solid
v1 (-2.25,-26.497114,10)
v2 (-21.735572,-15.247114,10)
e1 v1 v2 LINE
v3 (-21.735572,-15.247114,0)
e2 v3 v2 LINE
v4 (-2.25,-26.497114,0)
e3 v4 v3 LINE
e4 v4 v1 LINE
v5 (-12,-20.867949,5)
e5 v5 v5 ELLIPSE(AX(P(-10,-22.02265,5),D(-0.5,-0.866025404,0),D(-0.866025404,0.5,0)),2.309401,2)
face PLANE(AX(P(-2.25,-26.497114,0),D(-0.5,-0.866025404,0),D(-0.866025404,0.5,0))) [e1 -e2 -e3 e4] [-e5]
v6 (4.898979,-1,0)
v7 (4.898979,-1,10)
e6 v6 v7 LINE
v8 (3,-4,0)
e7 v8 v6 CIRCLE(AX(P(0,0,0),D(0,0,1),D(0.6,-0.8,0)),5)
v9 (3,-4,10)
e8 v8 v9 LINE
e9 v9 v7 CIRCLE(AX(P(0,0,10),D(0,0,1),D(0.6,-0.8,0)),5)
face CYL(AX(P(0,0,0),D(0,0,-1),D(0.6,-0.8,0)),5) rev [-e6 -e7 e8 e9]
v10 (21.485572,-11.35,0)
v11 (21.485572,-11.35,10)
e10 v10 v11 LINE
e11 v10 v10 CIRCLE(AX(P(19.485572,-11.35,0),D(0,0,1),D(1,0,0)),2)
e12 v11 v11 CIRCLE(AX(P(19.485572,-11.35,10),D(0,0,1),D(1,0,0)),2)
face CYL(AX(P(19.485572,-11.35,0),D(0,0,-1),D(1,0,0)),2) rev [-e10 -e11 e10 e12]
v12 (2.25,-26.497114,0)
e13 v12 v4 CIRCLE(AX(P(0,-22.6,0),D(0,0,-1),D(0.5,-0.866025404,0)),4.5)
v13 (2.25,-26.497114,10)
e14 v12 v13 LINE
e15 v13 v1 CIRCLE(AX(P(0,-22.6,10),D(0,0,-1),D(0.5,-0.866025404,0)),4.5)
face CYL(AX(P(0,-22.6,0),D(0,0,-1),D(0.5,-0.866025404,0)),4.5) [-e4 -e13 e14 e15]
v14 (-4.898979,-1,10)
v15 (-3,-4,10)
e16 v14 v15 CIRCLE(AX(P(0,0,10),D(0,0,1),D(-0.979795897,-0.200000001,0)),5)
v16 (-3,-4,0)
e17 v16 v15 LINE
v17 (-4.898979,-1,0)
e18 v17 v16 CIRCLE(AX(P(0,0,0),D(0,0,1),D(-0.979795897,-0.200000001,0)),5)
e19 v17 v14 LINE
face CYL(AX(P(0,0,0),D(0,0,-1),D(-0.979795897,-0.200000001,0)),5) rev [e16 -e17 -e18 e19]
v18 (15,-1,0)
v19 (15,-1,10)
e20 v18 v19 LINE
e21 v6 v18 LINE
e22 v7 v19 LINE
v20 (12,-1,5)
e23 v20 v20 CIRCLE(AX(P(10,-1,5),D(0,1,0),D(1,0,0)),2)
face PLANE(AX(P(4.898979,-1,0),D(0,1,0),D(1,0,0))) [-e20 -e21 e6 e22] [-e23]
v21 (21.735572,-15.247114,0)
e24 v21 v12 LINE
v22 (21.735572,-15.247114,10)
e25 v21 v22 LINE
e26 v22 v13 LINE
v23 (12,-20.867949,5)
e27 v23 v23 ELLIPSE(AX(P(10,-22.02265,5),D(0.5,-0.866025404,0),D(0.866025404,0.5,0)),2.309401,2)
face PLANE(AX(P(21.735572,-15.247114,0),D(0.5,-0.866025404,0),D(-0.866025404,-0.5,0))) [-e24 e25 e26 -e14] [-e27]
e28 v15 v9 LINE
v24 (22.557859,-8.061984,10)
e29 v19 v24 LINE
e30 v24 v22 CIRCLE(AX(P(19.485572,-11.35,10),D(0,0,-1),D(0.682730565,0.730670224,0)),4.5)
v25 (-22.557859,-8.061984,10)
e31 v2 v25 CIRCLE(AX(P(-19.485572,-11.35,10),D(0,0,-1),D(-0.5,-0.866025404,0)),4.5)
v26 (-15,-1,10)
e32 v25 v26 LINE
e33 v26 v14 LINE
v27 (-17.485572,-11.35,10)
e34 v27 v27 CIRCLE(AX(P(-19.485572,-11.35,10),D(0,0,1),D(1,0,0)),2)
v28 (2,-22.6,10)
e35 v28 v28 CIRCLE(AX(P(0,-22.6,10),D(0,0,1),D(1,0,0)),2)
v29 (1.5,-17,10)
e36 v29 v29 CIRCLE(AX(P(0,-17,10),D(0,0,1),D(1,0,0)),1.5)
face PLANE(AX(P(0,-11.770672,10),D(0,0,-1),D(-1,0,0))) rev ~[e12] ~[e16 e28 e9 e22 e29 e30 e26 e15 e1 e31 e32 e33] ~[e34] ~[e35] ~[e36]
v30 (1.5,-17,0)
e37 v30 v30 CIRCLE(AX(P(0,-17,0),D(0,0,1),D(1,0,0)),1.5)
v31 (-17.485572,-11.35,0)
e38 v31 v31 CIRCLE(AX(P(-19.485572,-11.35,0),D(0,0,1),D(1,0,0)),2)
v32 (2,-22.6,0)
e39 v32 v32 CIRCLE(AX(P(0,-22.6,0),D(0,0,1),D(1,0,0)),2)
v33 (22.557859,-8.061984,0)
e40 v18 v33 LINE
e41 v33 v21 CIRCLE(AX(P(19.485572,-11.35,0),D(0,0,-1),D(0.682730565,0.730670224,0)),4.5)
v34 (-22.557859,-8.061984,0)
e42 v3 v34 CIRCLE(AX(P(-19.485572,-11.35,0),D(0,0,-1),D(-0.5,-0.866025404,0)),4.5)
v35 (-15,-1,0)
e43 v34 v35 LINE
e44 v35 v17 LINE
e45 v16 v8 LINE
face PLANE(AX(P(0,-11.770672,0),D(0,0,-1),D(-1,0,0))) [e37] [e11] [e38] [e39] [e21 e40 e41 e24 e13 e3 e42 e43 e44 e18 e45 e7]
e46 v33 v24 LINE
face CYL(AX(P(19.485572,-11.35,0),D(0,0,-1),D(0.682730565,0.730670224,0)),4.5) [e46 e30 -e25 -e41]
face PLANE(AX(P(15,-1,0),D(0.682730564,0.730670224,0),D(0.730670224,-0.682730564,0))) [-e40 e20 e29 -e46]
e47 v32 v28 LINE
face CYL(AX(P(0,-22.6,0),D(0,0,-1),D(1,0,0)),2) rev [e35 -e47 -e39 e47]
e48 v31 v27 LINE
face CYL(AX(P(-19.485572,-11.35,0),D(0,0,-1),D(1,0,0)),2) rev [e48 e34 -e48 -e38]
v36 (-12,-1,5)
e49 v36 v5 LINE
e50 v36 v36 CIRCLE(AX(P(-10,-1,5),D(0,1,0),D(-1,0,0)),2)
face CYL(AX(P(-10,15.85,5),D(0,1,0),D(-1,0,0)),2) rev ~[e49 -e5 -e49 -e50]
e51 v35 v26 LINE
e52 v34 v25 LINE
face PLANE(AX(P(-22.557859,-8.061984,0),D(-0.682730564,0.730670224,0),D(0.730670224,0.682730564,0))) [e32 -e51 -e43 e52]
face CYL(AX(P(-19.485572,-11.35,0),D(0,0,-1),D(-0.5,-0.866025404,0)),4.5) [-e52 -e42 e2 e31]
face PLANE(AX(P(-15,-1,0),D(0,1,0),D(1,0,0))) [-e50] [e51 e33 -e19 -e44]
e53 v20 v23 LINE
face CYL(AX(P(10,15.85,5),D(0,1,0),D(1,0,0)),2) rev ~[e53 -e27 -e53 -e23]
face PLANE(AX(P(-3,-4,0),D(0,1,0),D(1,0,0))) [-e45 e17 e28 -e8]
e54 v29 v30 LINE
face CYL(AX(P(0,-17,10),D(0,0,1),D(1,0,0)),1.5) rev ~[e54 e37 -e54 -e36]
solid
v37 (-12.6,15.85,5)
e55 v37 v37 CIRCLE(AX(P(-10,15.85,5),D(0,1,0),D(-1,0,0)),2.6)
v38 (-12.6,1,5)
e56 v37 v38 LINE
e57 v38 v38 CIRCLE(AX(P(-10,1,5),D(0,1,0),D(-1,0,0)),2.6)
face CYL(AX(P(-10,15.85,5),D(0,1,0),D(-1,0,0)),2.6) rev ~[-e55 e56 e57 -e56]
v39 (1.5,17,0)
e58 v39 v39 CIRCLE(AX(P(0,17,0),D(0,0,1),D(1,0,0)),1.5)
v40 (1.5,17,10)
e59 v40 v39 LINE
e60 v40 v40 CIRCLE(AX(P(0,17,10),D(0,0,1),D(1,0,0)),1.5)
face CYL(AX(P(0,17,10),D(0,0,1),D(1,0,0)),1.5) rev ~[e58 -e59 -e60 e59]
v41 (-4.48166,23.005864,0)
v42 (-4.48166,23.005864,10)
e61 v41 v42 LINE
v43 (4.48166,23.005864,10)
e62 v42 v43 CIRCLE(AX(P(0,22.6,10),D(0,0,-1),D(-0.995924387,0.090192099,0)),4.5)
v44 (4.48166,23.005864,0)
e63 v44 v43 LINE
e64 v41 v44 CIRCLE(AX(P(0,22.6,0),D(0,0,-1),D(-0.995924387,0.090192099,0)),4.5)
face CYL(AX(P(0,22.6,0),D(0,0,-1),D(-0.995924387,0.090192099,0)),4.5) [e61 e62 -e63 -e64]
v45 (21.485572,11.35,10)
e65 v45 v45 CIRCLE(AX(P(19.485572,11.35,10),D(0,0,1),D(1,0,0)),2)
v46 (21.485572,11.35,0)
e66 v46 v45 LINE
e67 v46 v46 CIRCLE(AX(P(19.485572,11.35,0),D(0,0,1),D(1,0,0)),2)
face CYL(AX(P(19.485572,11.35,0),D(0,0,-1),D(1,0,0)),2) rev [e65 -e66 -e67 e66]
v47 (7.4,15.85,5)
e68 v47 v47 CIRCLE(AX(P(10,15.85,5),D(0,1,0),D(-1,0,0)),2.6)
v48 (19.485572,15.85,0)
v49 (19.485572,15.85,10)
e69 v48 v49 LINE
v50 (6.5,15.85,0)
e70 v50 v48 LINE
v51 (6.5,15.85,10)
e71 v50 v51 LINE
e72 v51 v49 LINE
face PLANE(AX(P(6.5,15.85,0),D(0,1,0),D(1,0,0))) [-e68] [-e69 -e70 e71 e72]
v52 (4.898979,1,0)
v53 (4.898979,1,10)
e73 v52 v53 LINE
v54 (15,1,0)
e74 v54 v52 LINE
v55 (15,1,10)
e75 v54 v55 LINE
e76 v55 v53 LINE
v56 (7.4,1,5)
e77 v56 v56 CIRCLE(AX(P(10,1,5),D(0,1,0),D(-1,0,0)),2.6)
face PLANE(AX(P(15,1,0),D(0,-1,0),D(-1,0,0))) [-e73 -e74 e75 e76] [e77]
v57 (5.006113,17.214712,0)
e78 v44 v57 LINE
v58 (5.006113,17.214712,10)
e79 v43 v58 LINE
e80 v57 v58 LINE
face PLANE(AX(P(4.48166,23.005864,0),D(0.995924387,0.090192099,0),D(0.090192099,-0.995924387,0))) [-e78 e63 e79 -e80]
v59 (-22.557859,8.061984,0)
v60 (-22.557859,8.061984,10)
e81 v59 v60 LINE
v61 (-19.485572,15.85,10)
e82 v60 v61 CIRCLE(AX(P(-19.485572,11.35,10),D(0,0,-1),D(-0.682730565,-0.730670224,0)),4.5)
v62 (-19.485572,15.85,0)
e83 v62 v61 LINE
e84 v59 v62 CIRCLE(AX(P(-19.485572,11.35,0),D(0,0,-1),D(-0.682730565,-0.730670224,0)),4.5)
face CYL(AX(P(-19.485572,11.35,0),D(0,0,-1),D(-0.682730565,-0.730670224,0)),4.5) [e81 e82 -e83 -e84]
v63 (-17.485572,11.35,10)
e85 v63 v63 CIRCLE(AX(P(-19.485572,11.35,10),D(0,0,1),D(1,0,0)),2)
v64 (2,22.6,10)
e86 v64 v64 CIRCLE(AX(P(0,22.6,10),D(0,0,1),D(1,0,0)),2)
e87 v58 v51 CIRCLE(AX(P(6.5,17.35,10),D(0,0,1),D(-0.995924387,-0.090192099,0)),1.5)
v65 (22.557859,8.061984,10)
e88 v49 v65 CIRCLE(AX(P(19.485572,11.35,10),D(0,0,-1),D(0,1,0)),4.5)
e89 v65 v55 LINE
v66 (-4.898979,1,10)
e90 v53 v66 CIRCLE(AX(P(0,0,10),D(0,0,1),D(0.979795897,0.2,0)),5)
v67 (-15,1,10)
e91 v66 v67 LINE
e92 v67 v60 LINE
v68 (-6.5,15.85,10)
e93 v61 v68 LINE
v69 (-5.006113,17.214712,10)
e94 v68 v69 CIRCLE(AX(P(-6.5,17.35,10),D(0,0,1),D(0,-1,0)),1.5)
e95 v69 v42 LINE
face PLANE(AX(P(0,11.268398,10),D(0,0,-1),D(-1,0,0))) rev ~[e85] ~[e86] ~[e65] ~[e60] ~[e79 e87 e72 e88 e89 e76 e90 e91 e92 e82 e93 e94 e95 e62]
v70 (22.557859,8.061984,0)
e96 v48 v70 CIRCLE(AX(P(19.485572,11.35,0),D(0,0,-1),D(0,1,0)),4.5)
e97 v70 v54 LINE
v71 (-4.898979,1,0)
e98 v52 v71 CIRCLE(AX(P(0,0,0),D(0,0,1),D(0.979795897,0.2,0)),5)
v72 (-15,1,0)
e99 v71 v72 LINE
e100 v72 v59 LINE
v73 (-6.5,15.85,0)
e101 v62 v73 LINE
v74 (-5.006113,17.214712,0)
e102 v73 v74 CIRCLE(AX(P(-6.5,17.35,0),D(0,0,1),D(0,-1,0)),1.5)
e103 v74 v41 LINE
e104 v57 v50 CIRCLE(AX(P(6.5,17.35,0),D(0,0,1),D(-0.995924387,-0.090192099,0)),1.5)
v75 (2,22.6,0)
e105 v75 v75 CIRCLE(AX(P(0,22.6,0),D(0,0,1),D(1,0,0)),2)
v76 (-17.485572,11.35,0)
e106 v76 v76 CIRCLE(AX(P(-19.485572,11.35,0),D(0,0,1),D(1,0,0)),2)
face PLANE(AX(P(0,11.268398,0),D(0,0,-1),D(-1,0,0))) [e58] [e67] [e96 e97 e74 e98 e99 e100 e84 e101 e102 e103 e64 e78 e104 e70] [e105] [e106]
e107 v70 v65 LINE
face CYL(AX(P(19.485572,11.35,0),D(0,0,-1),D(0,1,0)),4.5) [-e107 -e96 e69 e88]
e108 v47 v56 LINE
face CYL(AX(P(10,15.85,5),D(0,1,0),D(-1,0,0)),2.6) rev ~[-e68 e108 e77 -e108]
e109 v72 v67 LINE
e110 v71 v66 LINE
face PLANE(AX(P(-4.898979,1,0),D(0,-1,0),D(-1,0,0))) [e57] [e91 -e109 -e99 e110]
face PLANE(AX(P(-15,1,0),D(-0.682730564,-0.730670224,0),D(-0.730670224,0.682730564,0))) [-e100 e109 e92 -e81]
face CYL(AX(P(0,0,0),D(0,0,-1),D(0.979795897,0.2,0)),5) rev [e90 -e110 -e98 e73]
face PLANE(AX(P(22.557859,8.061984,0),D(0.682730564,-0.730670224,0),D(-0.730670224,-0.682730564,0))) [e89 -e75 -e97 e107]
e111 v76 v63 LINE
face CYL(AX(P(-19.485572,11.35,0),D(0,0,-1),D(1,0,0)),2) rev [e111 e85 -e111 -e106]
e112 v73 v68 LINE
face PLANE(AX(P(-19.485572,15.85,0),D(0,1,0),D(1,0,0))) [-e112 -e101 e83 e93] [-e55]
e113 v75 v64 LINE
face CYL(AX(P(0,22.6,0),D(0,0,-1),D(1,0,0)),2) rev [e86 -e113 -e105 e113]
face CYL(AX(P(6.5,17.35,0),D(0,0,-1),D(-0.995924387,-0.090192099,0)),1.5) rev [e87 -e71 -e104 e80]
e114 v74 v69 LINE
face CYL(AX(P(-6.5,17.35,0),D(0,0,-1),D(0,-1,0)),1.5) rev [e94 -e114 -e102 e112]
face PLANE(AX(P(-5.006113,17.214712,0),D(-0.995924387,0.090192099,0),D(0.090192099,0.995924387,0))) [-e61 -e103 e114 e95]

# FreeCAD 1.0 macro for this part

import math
import FreeCAD as App
import Part
import Sketcher
Q = App.Units.Quantity

doc = App.newDocument("Part")
body = doc.addObject("PartDesign::Body", "Body")

# Sketch on XY plane
sketch1 = body.newObject("Sketcher::SketchObject", "Sketch")
sketch1.AttachmentSupport = (doc.getObject("XY_Plane"), [""])
sketch1.MapMode = "FlatFace"
sketch1.addGeometry(Part.LineSegment(App.Vector(3, -4, 0), App.Vector(-3, -4, 0)), False)
sketch1.addGeometry(Part.ArcOfCircle(Part.Circle(App.Vector(0, 0, 0), App.Vector(0, 0, 1), 5), math.radians(-168), math.radians(-127)), False)
sketch1.addGeometry(Part.LineSegment(App.Vector(-4.9, -1, 0), App.Vector(-15, -1, 0)), False)
sketch1.addGeometry(Part.LineSegment(App.Vector(-15, -1, 0), App.Vector(-22.6, -8.1, 0)), False)
sketch1.addGeometry(Part.ArcOfCircle(Part.Circle(App.Vector(-19.5, -11.3, 0), App.Vector(0, 0, 1), 4.5), math.radians(133), math.radians(240)), False)
sketch1.addGeometry(Part.LineSegment(App.Vector(-21.7, -15.2, 0), App.Vector(-2.2, -26.5, 0)), False)
sketch1.addGeometry(Part.ArcOfCircle(Part.Circle(App.Vector(0, -22.6, 0), App.Vector(0, 0, 1), 4.5), math.radians(-120), math.radians(-60)), False)
sketch1.addGeometry(Part.LineSegment(App.Vector(2.2, -26.5, 0), App.Vector(21.7, -15.2, 0)), False)
sketch1.addGeometry(Part.ArcOfCircle(Part.Circle(App.Vector(19.5, -11.3, 0), App.Vector(0, 0, 1), 4.5), math.radians(-60), math.radians(47)), False)
sketch1.addGeometry(Part.LineSegment(App.Vector(22.6, -8.1, 0), App.Vector(15, -1, 0)), False)
sketch1.addGeometry(Part.LineSegment(App.Vector(15, -1, 0), App.Vector(4.9, -1, 0)), False)
sketch1.addGeometry(Part.ArcOfCircle(Part.Circle(App.Vector(0, 0, 0), App.Vector(0, 0, 1), 5), math.radians(-53), math.radians(-12)), False)
sketch1.addGeometry(Part.Circle(App.Vector(0, -22.6, 0), App.Vector(0, 0, 1), 2), False)
sketch1.addGeometry(Part.Circle(App.Vector(19.5, -11.3, 0), App.Vector(0, 0, 1), 2), False)
sketch1.addGeometry(Part.Circle(App.Vector(-19.5, -11.3, 0), App.Vector(0, 0, 1), 2), False)
sketch1.addConstraint(Sketcher.Constraint("Coincident", 0, 2, 1, 2))
sketch1.addConstraint(Sketcher.Constraint("Coincident", 1, 1, 2, 1))
sketch1.addConstraint(Sketcher.Constraint("Coincident", 2, 2, 3, 1))
sketch1.addConstraint(Sketcher.Constraint("Tangent", 3, 2, 4, 1))
sketch1.addConstraint(Sketcher.Constraint("Tangent", 4, 2, 5, 1))
sketch1.addConstraint(Sketcher.Constraint("Tangent", 5, 2, 6, 1))
sketch1.addConstraint(Sketcher.Constraint("Tangent", 6, 2, 7, 1))
sketch1.addConstraint(Sketcher.Constraint("Tangent", 7, 2, 8, 1))
sketch1.addConstraint(Sketcher.Constraint("Tangent", 8, 2, 9, 1))
sketch1.addConstraint(Sketcher.Constraint("Coincident", 9, 2, 10, 1))
sketch1.addConstraint(Sketcher.Constraint("Coincident", 10, 2, 11, 2))
sketch1.addConstraint(Sketcher.Constraint("Coincident", 11, 1, 0, 1))
sketch1.addConstraint(Sketcher.Constraint("Horizontal", 0))
sketch1.addConstraint(Sketcher.Constraint("Horizontal", 2))
sketch1.addConstraint(Sketcher.Constraint("Horizontal", 10))
sketch1.addConstraint(Sketcher.Constraint("Coincident", 1, 3, -1, 1))
sketch1.addConstraint(Sketcher.Constraint("Coincident", 11, 3, -1, 1))
sketch1.addConstraint(Sketcher.Constraint("Coincident", 12, 3, 6, 3))
sketch1.addConstraint(Sketcher.Constraint("Coincident", 13, 3, 8, 3))
sketch1.addConstraint(Sketcher.Constraint("Coincident", 14, 3, 4, 3))
sketch1.addConstraint(Sketcher.Constraint("Equal", 4, 6))
sketch1.addConstraint(Sketcher.Constraint("Equal", 6, 8))
sketch1.addConstraint(Sketcher.Constraint("Equal", 1, 11))
sketch1.addConstraint(Sketcher.Constraint("Equal", 12, 13))
sketch1.addConstraint(Sketcher.Constraint("Equal", 13, 14))
sketch1.addConstraint(Sketcher.Constraint("Symmetric", 4, 3, 8, 3, -2))
sketch1.addConstraint(Sketcher.Constraint("Symmetric", 2, 2, 9, 2, -2))
sketch1.addConstraint(Sketcher.Constraint("PointOnObject", 6, 3, -2))
sketch1.addConstraint(Sketcher.Constraint("Diameter", 12, Q("4 mm")))
sketch1.addConstraint(Sketcher.Constraint("Radius", 1, Q("5 mm")))
sketch1.addConstraint(Sketcher.Constraint("Radius", 4, Q("4.5 mm")))
sketch1.addConstraint(Sketcher.Constraint("DistanceX", 0, 2, 0, 1, Q("6 mm")))
sketch1.addConstraint(Sketcher.Constraint("Angle", 5, Q("-30 deg")))
sketch1.addConstraint(Sketcher.Constraint("DistanceY", 1, 1, -1, 1, Q("1 mm")))
sketch1.addConstraint(Sketcher.Constraint("DistanceX", 2, 2, -1, 1, Q("15 mm")))
sketch1.addConstraint(Sketcher.Constraint("Distance", 5, Q("22.5 mm")))
sketch1.addConstraint(Sketcher.Constraint("DistanceY", 6, 3, -1, 1, Q("22.6 mm")))
pad1 = body.newObject("PartDesign::Pad", "Pad")
pad1.Profile = sketch1
pad1.Length = 10

# Sketch on XZ plane
sketch2 = body.newObject("Sketcher::SketchObject", "Sketch001")
sketch2.AttachmentSupport = (doc.getObject("XZ_Plane"), [""])
sketch2.MapMode = "FlatFace"
sketch2.AttachmentOffset = App.Placement(App.Vector(0, 0, -15.85), App.Rotation())
sketch2.addGeometry(Part.Circle(App.Vector(-10, 5, 0), App.Vector(0, 0, 1), 2), False)
sketch2.addGeometry(Part.Circle(App.Vector(10, 5, 0), App.Vector(0, 0, 1), 2), False)
sketch2.addConstraint(Sketcher.Constraint("Equal", 0, 1))
sketch2.addConstraint(Sketcher.Constraint("Symmetric", 0, 3, 1, 3, -2))
sketch2.addConstraint(Sketcher.Constraint("Diameter", 0, Q("4 mm")))
sketch2.addConstraint(Sketcher.Constraint("DistanceX", 0, 3, -1, 1, Q("10 mm")))
sketch2.addConstraint(Sketcher.Constraint("DistanceY", -1, 1, 0, 3, Q("5 mm")))
pocket1 = body.newObject("PartDesign::Pocket", "Pocket")
pocket1.Profile = sketch2
pocket1.Type = "ThroughAll"
pocket1.Reversed = True
body2 = doc.addObject("PartDesign::Body", "Body001")

# Sketch on XY plane
sketch3 = body2.newObject("Sketcher::SketchObject", "Sketch002")
sketch3.AttachmentSupport = (doc.getObject("XY_Plane001"), [""])
sketch3.MapMode = "FlatFace"
sketch3.addGeometry(Part.LineSegment(App.Vector(-22.6, 8.1, 0), App.Vector(-15, 1, 0)), False)
sketch3.addGeometry(Part.LineSegment(App.Vector(-15, 1, 0), App.Vector(-4.9, 1, 0)), False)
sketch3.addGeometry(Part.ArcOfCircle(Part.Circle(App.Vector(0, 0, 0), App.Vector(0, 0, 1), 5), math.radians(12), math.radians(168)), False)
sketch3.addGeometry(Part.LineSegment(App.Vector(4.9, 1, 0), App.Vector(15, 1, 0)), False)
sketch3.addGeometry(Part.LineSegment(App.Vector(15, 1, 0), App.Vector(22.6, 8.1, 0)), False)
sketch3.addGeometry(Part.ArcOfCircle(Part.Circle(App.Vector(19.5, 11.3, 0), App.Vector(0, 0, 1), 4.5), math.radians(-47), math.radians(90)), False)
sketch3.addGeometry(Part.LineSegment(App.Vector(19.5, 15.8, 0), App.Vector(6.5, 15.8, 0)), False)
sketch3.addGeometry(Part.ArcOfCircle(Part.Circle(App.Vector(6.5, 17.4, 0), App.Vector(0, 0, 1), 1.5), math.radians(-175), math.radians(-90)), False)
sketch3.addGeometry(Part.LineSegment(App.Vector(5, 17.2, 0), App.Vector(4.5, 23, 0)), False)
sketch3.addGeometry(Part.ArcOfCircle(Part.Circle(App.Vector(0, 22.6, 0), App.Vector(0, 0, 1), 4.5), math.radians(5), math.radians(175)), False)
sketch3.addGeometry(Part.LineSegment(App.Vector(-4.5, 23, 0), App.Vector(-5, 17.2, 0)), False)
sketch3.addGeometry(Part.ArcOfCircle(Part.Circle(App.Vector(-6.5, 17.4, 0), App.Vector(0, 0, 1), 1.5), math.radians(-90), math.radians(-5)), False)
sketch3.addGeometry(Part.LineSegment(App.Vector(-6.5, 15.8, 0), App.Vector(-19.5, 15.8, 0)), False)
sketch3.addGeometry(Part.ArcOfCircle(Part.Circle(App.Vector(-19.5, 11.3, 0), App.Vector(0, 0, 1), 4.5), math.radians(90), math.radians(227)), False)
sketch3.addGeometry(Part.Circle(App.Vector(19.5, 11.3, 0), App.Vector(0, 0, 1), 2), False)
sketch3.addGeometry(Part.Circle(App.Vector(-19.5, 11.3, 0), App.Vector(0, 0, 1), 2), False)
sketch3.addGeometry(Part.Circle(App.Vector(0, 22.6, 0), App.Vector(0, 0, 1), 2), False)
sketch3.addConstraint(Sketcher.Constraint("Coincident", 0, 2, 1, 1))
sketch3.addConstraint(Sketcher.Constraint("Coincident", 1, 2, 2, 2))
sketch3.addConstraint(Sketcher.Constraint("Coincident", 2, 1, 3, 1))
sketch3.addConstraint(Sketcher.Constraint("Coincident", 3, 2, 4, 1))
sketch3.addConstraint(Sketcher.Constraint("Tangent", 4, 2, 5, 1))
sketch3.addConstraint(Sketcher.Constraint("Tangent", 5, 2, 6, 1))
sketch3.addConstraint(Sketcher.Constraint("Tangent", 6, 2, 7, 2))
sketch3.addConstraint(Sketcher.Constraint("Tangent", 7, 1, 8, 1))
sketch3.addConstraint(Sketcher.Constraint("Tangent", 8, 2, 9, 1))
sketch3.addConstraint(Sketcher.Constraint("Tangent", 9, 2, 10, 1))
sketch3.addConstraint(Sketcher.Constraint("Tangent", 10, 2, 11, 2))
sketch3.addConstraint(Sketcher.Constraint("Tangent", 11, 1, 12, 1))
sketch3.addConstraint(Sketcher.Constraint("Tangent", 12, 2, 13, 1))
sketch3.addConstraint(Sketcher.Constraint("Tangent", 13, 2, 0, 1))
sketch3.addConstraint(Sketcher.Constraint("Horizontal", 1))
sketch3.addConstraint(Sketcher.Constraint("Horizontal", 3))
sketch3.addConstraint(Sketcher.Constraint("Horizontal", 6))
sketch3.addConstraint(Sketcher.Constraint("Horizontal", 12))
sketch3.addConstraint(Sketcher.Constraint("Coincident", 2, 3, -1, 1))
sketch3.addConstraint(Sketcher.Constraint("Coincident", 14, 3, 5, 3))
sketch3.addConstraint(Sketcher.Constraint("Coincident", 15, 3, 13, 3))
sketch3.addConstraint(Sketcher.Constraint("Coincident", 16, 3, 9, 3))
sketch3.addConstraint(Sketcher.Constraint("Equal", 5, 9))
sketch3.addConstraint(Sketcher.Constraint("Equal", 7, 11))
sketch3.addConstraint(Sketcher.Constraint("Equal", 9, 13))
sketch3.addConstraint(Sketcher.Constraint("Equal", 14, 15))
sketch3.addConstraint(Sketcher.Constraint("Equal", 15, 16))
sketch3.addConstraint(Sketcher.Constraint("Symmetric", 7, 3, 11, 3, -2))
sketch3.addConstraint(Sketcher.Constraint("Symmetric", 0, 2, 3, 2, -2))
sketch3.addConstraint(Sketcher.Constraint("PointOnObject", 9, 3, -2))
sketch3.addConstraint(Sketcher.Constraint("Horizontal", 4, 2, 13, 2))
sketch3.addConstraint(Sketcher.Constraint("Diameter", 14, Q("4 mm")))
sketch3.addConstraint(Sketcher.Constraint("Radius", 2, Q("5 mm")))
sketch3.addConstraint(Sketcher.Constraint("Radius", 5, Q("4.5 mm")))
sketch3.addConstraint(Sketcher.Constraint("Radius", 7, Q("1.5 mm")))
sketch3.addConstraint(Sketcher.Constraint("DistanceX", 0, 2, -1, 1, Q("15 mm")))
sketch3.addConstraint(Sketcher.Constraint("DistanceY", -1, 1, 0, 2, Q("1 mm")))
sketch3.addConstraint(Sketcher.Constraint("DistanceX", 11, 3, 7, 3, Q("13 mm")))
sketch3.addConstraint(Sketcher.Constraint("DistanceY", -1, 1, 9, 3, Q("22.6 mm")))
sketch3.addConstraint(Sketcher.Constraint("DistanceY", -1, 1, 5, 3, Q("11.35 mm")))
sketch3.addConstraint(Sketcher.Constraint("DistanceX", 6, 2, 6, 1, Q("12.985572 mm")))
pad2 = body2.newObject("PartDesign::Pad", "Pad001")
pad2.Profile = sketch3
pad2.Length = 10

# Sketch on XZ plane
sketch4 = body2.newObject("Sketcher::SketchObject", "Sketch003")
sketch4.AttachmentSupport = (doc.getObject("XZ_Plane001"), [""])
sketch4.MapMode = "FlatFace"
sketch4.AttachmentOffset = App.Placement(App.Vector(0, 0, -15.85), App.Rotation())
sketch4.addGeometry(Part.Circle(App.Vector(-10, 5, 0), App.Vector(0, 0, 1), 2.6), False)
sketch4.addGeometry(Part.Circle(App.Vector(10, 5, 0), App.Vector(0, 0, 1), 2.6), False)
sketch4.addConstraint(Sketcher.Constraint("Equal", 0, 1))
sketch4.addConstraint(Sketcher.Constraint("Symmetric", 0, 3, 1, 3, -2))
sketch4.addConstraint(Sketcher.Constraint("Diameter", 0, Q("5.2 mm")))
sketch4.addConstraint(Sketcher.Constraint("DistanceX", 0, 3, -1, 1, Q("10 mm")))
sketch4.addConstraint(Sketcher.Constraint("DistanceY", -1, 1, 0, 3, Q("5 mm")))
pocket2 = body2.newObject("PartDesign::Pocket", "Pocket001")
pocket2.Profile = sketch4
pocket2.Length = 14.85
pocket2.Reversed = True
body3 = doc.addObject("PartDesign::Body", "Body002")
body3.AllowCompound = True

# Sketch on XY plane
sketch5 = body3.newObject("Sketcher::SketchObject", "Sketch004")
sketch5.AttachmentSupport = (doc.getObject("XY_Plane002"), [""])
sketch5.MapMode = "FlatFace"
sketch5.AttachmentOffset = App.Placement(App.Vector(0, 0, 10), App.Rotation())
sketch5.addGeometry(Part.Circle(App.Vector(0, -17, 0), App.Vector(0, 0, 1), 1.5), False)
sketch5.addGeometry(Part.Circle(App.Vector(0, 17, 0), App.Vector(0, 0, 1), 1.5), False)
sketch5.addConstraint(Sketcher.Constraint("Equal", 0, 1))
sketch5.addConstraint(Sketcher.Constraint("Symmetric", 0, 3, 1, 3, -1, 1))
sketch5.addConstraint(Sketcher.Constraint("PointOnObject", 0, 3, -2))
sketch5.addConstraint(Sketcher.Constraint("Diameter", 0, Q("3 mm")))
sketch5.addConstraint(Sketcher.Constraint("DistanceY", 0, 3, -1, 1, Q("17 mm")))
pad3 = body3.newObject("PartDesign::Pad", "Pad002")
pad3.Profile = sketch5
pad3.Length = 38.546207
pad3.Reversed = True
doc.recompute()

body4 = doc.addObject("PartDesign::Body", "Body003")
body4.BaseFeature = body3
boolean = body.newObject("PartDesign::Boolean", "Boolean")
boolean.Type = "Cut"
boolean.addObjects([body4])
doc.recompute()

boolean2 = body2.newObject("PartDesign::Boolean", "Boolean001")
boolean2.Type = "Cut"
boolean2.addObjects([body3])

doc.recompute()
